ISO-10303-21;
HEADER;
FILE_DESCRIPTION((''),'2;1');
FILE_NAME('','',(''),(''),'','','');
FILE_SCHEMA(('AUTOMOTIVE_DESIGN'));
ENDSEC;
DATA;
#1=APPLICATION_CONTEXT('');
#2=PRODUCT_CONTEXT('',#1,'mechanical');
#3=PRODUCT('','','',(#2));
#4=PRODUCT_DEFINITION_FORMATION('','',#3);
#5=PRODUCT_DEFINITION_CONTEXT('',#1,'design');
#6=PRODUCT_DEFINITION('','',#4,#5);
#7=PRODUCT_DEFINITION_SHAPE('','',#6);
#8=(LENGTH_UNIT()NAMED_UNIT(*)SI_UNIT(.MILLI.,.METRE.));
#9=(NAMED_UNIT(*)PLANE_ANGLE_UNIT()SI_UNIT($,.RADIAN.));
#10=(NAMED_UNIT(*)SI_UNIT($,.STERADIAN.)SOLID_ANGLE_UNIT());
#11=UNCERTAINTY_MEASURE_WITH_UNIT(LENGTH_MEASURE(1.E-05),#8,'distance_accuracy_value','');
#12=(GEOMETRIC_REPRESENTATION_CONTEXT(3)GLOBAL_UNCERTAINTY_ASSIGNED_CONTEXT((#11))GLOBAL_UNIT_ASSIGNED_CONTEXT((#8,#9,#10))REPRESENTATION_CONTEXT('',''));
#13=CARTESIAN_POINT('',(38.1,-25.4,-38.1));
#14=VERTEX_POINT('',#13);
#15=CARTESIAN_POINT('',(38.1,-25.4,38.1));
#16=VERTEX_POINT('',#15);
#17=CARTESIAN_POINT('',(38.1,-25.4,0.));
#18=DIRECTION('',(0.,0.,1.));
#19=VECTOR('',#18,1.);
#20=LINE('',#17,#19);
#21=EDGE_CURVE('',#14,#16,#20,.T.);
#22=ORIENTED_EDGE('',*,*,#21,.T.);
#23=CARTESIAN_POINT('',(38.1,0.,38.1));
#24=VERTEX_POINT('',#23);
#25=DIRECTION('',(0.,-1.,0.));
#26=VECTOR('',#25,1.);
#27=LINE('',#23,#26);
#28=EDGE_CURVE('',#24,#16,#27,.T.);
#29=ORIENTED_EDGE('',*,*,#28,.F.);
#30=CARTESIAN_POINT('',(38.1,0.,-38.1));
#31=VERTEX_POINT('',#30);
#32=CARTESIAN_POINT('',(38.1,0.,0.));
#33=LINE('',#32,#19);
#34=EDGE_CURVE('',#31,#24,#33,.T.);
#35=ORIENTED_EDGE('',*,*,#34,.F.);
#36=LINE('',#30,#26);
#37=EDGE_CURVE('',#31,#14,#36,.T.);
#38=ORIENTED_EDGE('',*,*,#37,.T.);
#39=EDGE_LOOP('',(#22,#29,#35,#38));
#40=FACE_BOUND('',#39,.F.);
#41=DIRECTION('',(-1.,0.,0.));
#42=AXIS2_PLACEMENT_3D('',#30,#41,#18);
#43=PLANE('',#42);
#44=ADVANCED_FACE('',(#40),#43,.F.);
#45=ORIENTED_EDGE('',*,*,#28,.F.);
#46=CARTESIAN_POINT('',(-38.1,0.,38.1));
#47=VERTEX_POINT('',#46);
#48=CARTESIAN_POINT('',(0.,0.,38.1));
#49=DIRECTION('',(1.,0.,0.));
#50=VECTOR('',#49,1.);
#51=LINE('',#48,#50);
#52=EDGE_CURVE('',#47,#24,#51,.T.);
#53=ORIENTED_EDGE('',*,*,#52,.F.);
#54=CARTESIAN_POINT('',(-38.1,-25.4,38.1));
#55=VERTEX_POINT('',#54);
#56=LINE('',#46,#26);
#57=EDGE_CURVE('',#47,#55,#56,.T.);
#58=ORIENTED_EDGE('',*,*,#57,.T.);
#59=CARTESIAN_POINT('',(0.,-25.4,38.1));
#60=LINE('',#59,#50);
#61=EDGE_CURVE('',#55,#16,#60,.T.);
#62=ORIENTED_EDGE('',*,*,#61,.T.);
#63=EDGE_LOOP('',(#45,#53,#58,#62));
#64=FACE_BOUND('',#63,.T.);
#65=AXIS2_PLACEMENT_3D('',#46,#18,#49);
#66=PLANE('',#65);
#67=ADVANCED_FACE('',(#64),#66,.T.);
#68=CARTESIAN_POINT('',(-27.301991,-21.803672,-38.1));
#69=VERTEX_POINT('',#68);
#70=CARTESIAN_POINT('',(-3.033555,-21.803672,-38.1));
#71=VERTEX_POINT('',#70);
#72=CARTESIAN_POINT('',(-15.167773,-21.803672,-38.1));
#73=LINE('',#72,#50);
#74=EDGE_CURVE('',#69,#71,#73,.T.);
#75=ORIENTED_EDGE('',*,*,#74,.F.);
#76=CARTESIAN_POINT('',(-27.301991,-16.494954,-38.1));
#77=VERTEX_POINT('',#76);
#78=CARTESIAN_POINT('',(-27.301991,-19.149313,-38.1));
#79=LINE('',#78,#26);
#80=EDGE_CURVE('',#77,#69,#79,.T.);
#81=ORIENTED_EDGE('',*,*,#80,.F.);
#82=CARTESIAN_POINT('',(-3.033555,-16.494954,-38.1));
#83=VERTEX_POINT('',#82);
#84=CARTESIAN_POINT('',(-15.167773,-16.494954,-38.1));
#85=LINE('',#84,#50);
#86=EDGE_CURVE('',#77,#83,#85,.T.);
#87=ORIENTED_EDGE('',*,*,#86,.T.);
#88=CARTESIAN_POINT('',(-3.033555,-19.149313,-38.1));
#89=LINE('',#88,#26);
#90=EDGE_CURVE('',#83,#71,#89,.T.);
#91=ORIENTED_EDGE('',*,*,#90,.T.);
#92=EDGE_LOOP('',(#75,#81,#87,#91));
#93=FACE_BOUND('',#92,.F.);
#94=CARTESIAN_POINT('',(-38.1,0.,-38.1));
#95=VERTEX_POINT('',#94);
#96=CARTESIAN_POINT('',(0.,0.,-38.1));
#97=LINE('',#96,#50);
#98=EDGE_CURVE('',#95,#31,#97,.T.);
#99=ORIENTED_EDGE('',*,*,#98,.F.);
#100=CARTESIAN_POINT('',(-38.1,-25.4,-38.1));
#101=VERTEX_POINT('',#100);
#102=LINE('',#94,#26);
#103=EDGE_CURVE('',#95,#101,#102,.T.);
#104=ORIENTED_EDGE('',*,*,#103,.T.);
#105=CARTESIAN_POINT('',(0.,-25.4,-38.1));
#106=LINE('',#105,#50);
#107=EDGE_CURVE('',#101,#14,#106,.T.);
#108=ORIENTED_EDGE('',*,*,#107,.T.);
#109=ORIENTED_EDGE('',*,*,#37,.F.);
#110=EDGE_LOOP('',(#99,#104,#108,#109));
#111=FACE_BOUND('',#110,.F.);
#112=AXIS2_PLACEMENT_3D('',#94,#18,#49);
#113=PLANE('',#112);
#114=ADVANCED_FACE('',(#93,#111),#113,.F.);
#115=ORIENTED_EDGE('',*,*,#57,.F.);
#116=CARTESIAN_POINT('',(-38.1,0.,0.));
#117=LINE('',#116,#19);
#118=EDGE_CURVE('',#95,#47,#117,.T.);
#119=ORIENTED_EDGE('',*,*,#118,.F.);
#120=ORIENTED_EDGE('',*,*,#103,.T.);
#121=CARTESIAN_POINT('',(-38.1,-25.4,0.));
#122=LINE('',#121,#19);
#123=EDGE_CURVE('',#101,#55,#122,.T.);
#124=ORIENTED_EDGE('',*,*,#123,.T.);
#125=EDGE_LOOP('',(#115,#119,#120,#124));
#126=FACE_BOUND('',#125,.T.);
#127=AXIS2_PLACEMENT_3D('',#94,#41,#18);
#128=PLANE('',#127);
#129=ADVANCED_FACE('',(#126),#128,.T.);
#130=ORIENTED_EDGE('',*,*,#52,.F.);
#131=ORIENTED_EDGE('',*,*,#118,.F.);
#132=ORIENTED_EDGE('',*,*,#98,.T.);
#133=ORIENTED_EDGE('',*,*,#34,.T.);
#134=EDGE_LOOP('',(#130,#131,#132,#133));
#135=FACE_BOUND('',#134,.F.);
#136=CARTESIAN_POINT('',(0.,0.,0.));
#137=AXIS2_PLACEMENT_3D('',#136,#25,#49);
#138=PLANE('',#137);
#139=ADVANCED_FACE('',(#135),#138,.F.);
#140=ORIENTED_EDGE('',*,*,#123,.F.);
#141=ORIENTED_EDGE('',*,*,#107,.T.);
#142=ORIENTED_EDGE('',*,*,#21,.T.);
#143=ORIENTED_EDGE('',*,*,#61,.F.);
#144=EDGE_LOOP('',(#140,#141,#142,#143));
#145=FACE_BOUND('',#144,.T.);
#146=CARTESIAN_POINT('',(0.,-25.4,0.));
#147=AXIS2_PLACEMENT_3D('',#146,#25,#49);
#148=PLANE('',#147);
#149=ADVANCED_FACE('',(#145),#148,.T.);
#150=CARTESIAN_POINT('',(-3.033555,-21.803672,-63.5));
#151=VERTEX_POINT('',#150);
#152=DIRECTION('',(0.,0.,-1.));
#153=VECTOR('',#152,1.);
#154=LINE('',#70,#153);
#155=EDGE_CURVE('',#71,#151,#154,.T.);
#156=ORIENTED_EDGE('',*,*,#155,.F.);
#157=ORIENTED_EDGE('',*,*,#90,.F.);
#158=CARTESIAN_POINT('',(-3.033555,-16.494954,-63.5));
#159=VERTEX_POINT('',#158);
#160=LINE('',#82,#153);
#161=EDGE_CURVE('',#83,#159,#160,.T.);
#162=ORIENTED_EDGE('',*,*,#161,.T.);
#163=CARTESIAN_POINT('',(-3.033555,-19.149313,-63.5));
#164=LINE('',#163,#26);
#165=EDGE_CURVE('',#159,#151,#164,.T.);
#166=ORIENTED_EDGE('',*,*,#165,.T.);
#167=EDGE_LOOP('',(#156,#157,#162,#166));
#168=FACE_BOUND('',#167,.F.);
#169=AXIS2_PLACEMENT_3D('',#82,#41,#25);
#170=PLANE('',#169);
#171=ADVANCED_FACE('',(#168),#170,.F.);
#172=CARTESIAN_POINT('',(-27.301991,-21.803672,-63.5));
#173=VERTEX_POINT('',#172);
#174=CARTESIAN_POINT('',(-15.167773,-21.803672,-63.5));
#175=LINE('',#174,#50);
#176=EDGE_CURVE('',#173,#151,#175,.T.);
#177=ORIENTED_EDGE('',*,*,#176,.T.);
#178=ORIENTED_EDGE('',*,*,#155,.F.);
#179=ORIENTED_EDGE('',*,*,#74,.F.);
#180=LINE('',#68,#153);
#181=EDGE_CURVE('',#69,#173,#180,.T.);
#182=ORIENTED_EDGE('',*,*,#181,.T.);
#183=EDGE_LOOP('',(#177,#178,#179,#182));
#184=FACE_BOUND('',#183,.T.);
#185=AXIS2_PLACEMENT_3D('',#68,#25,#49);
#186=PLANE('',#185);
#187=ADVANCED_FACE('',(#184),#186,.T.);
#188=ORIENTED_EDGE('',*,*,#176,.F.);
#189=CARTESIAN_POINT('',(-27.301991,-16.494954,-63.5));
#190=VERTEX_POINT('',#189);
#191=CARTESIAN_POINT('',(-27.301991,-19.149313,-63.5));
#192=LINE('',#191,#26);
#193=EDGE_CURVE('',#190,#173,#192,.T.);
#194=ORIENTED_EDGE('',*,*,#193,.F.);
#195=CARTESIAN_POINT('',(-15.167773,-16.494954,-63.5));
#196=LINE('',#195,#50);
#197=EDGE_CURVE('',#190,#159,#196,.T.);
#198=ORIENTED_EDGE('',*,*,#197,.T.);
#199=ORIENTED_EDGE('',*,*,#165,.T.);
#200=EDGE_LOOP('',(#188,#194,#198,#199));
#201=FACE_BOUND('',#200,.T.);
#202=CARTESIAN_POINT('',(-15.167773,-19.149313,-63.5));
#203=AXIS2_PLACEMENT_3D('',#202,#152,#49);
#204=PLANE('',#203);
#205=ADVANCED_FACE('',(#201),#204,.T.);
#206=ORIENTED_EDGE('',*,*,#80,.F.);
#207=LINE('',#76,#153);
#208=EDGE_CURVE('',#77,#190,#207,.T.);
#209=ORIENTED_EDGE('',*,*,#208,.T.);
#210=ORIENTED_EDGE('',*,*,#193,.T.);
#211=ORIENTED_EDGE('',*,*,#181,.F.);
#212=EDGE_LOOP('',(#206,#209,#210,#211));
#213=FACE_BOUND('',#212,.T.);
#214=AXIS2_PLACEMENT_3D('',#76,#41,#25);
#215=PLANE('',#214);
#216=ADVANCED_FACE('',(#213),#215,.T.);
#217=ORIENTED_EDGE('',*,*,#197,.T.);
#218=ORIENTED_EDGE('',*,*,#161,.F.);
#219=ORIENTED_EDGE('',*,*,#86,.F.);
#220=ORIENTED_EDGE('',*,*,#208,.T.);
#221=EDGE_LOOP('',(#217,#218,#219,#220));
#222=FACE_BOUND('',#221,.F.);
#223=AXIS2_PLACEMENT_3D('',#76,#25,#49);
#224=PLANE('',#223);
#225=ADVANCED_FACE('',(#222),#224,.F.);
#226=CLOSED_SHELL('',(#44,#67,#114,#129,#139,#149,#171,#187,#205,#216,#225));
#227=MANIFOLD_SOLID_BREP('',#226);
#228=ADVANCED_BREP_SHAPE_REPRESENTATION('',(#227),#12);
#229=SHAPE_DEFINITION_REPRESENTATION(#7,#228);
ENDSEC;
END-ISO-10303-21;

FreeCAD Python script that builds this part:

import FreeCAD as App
import Part
import Sketcher
from FreeCAD import Vector
Q = App.Units.Quantity

doc = App.newDocument("Part")
body = doc.addObject("PartDesign::Body", "Body")

# Sketch on XZ plane
sketch1 = body.newObject("Sketcher::SketchObject", "Sketch")
sketch1.AttachmentSupport = (doc.getObject("XZ_Plane"), [""])
sketch1.MapMode = "FlatFace"
sketch1.addGeometry([
    Part.LineSegment(Vector(-38.1, 38.1, 0), Vector(-38.1, -38.1, 0)),
    Part.LineSegment(Vector(-38.1, -38.1, 0), Vector(38.1, -38.1, 0)),
    Part.LineSegment(Vector(38.1, -38.1, 0), Vector(38.1, 38.1, 0)),
    Part.LineSegment(Vector(38.1, 38.1, 0), Vector(-38.1, 38.1, 0)),
], False)
sketch1.addConstraint([
    Sketcher.Constraint("Coincident", 0, 2, 1, 1),
    Sketcher.Constraint("Coincident", 1, 2, 2, 1),
    Sketcher.Constraint("Coincident", 2, 2, 3, 1),
    Sketcher.Constraint("Coincident", 3, 2, 0, 1),
    Sketcher.Constraint("Vertical", 0),
    Sketcher.Constraint("Horizontal", 1),
    Sketcher.Constraint("Vertical", 2),
    Sketcher.Constraint("Horizontal", 3),
    Sketcher.Constraint("Symmetric", 0, 2, 2, 2, -1, 1),
    Sketcher.Constraint("Equal", 3, 0),
    Sketcher.Constraint("DistanceX", 1, 1, 1, 2, Q("3 in")),
])
pad1 = body.newObject("PartDesign::Pad", "Pad")
pad1.Profile = sketch1
pad1.Length = Q("1 in")

# Sketch on XY plane
sketch2 = body.newObject("Sketcher::SketchObject", "Sketch001")
sketch2.AttachmentSupport = (doc.getObject("XY_Plane"), [""])
sketch2.MapMode = "FlatFace"
sketch2.AttachmentOffset = App.Placement(Vector(0, 0, -1.5 * 25.4), App.Rotation())
sketch2.addGeometry([
    Part.LineSegment(Vector(-27.301991, -21.803672, 0), Vector(-27.301991, -16.494954, 0)),
    Part.LineSegment(Vector(-27.301991, -16.494954, 0), Vector(-3.033555, -16.494954, 0)),
    Part.LineSegment(Vector(-3.033555, -16.494954, 0), Vector(-3.033555, -21.803672, 0)),
    Part.LineSegment(Vector(-3.033555, -21.803672, 0), Vector(-27.301991, -21.803672, 0)),
], False)
sketch2.addConstraint([
    Sketcher.Constraint("Coincident", 0, 2, 1, 1),
    Sketcher.Constraint("Coincident", 1, 2, 2, 1),
    Sketcher.Constraint("Coincident", 2, 2, 3, 1),
    Sketcher.Constraint("Coincident", 3, 2, 0, 1),
    Sketcher.Constraint("Vertical", 0),
    Sketcher.Constraint("Horizontal", 1),
    Sketcher.Constraint("Vertical", 2),
    Sketcher.Constraint("Horizontal", 3),
    Sketcher.Constraint("DistanceX", 1, 1, 1, 2, 24.268436),
    Sketcher.Constraint("DistanceY", 0, 1, 0, 2, 5.308717),
    Sketcher.Constraint("DistanceX", 0, 2, -1, 1, 27.301991),
    Sketcher.Constraint("DistanceY", 2, 2, -1, 1, 21.803672),
])
pad2 = body.newObject("PartDesign::Pad", "Pad001")
pad2.Profile = sketch2
pad2.Length = Q("1 in")
pad2.Reversed = True

doc.recompute()
